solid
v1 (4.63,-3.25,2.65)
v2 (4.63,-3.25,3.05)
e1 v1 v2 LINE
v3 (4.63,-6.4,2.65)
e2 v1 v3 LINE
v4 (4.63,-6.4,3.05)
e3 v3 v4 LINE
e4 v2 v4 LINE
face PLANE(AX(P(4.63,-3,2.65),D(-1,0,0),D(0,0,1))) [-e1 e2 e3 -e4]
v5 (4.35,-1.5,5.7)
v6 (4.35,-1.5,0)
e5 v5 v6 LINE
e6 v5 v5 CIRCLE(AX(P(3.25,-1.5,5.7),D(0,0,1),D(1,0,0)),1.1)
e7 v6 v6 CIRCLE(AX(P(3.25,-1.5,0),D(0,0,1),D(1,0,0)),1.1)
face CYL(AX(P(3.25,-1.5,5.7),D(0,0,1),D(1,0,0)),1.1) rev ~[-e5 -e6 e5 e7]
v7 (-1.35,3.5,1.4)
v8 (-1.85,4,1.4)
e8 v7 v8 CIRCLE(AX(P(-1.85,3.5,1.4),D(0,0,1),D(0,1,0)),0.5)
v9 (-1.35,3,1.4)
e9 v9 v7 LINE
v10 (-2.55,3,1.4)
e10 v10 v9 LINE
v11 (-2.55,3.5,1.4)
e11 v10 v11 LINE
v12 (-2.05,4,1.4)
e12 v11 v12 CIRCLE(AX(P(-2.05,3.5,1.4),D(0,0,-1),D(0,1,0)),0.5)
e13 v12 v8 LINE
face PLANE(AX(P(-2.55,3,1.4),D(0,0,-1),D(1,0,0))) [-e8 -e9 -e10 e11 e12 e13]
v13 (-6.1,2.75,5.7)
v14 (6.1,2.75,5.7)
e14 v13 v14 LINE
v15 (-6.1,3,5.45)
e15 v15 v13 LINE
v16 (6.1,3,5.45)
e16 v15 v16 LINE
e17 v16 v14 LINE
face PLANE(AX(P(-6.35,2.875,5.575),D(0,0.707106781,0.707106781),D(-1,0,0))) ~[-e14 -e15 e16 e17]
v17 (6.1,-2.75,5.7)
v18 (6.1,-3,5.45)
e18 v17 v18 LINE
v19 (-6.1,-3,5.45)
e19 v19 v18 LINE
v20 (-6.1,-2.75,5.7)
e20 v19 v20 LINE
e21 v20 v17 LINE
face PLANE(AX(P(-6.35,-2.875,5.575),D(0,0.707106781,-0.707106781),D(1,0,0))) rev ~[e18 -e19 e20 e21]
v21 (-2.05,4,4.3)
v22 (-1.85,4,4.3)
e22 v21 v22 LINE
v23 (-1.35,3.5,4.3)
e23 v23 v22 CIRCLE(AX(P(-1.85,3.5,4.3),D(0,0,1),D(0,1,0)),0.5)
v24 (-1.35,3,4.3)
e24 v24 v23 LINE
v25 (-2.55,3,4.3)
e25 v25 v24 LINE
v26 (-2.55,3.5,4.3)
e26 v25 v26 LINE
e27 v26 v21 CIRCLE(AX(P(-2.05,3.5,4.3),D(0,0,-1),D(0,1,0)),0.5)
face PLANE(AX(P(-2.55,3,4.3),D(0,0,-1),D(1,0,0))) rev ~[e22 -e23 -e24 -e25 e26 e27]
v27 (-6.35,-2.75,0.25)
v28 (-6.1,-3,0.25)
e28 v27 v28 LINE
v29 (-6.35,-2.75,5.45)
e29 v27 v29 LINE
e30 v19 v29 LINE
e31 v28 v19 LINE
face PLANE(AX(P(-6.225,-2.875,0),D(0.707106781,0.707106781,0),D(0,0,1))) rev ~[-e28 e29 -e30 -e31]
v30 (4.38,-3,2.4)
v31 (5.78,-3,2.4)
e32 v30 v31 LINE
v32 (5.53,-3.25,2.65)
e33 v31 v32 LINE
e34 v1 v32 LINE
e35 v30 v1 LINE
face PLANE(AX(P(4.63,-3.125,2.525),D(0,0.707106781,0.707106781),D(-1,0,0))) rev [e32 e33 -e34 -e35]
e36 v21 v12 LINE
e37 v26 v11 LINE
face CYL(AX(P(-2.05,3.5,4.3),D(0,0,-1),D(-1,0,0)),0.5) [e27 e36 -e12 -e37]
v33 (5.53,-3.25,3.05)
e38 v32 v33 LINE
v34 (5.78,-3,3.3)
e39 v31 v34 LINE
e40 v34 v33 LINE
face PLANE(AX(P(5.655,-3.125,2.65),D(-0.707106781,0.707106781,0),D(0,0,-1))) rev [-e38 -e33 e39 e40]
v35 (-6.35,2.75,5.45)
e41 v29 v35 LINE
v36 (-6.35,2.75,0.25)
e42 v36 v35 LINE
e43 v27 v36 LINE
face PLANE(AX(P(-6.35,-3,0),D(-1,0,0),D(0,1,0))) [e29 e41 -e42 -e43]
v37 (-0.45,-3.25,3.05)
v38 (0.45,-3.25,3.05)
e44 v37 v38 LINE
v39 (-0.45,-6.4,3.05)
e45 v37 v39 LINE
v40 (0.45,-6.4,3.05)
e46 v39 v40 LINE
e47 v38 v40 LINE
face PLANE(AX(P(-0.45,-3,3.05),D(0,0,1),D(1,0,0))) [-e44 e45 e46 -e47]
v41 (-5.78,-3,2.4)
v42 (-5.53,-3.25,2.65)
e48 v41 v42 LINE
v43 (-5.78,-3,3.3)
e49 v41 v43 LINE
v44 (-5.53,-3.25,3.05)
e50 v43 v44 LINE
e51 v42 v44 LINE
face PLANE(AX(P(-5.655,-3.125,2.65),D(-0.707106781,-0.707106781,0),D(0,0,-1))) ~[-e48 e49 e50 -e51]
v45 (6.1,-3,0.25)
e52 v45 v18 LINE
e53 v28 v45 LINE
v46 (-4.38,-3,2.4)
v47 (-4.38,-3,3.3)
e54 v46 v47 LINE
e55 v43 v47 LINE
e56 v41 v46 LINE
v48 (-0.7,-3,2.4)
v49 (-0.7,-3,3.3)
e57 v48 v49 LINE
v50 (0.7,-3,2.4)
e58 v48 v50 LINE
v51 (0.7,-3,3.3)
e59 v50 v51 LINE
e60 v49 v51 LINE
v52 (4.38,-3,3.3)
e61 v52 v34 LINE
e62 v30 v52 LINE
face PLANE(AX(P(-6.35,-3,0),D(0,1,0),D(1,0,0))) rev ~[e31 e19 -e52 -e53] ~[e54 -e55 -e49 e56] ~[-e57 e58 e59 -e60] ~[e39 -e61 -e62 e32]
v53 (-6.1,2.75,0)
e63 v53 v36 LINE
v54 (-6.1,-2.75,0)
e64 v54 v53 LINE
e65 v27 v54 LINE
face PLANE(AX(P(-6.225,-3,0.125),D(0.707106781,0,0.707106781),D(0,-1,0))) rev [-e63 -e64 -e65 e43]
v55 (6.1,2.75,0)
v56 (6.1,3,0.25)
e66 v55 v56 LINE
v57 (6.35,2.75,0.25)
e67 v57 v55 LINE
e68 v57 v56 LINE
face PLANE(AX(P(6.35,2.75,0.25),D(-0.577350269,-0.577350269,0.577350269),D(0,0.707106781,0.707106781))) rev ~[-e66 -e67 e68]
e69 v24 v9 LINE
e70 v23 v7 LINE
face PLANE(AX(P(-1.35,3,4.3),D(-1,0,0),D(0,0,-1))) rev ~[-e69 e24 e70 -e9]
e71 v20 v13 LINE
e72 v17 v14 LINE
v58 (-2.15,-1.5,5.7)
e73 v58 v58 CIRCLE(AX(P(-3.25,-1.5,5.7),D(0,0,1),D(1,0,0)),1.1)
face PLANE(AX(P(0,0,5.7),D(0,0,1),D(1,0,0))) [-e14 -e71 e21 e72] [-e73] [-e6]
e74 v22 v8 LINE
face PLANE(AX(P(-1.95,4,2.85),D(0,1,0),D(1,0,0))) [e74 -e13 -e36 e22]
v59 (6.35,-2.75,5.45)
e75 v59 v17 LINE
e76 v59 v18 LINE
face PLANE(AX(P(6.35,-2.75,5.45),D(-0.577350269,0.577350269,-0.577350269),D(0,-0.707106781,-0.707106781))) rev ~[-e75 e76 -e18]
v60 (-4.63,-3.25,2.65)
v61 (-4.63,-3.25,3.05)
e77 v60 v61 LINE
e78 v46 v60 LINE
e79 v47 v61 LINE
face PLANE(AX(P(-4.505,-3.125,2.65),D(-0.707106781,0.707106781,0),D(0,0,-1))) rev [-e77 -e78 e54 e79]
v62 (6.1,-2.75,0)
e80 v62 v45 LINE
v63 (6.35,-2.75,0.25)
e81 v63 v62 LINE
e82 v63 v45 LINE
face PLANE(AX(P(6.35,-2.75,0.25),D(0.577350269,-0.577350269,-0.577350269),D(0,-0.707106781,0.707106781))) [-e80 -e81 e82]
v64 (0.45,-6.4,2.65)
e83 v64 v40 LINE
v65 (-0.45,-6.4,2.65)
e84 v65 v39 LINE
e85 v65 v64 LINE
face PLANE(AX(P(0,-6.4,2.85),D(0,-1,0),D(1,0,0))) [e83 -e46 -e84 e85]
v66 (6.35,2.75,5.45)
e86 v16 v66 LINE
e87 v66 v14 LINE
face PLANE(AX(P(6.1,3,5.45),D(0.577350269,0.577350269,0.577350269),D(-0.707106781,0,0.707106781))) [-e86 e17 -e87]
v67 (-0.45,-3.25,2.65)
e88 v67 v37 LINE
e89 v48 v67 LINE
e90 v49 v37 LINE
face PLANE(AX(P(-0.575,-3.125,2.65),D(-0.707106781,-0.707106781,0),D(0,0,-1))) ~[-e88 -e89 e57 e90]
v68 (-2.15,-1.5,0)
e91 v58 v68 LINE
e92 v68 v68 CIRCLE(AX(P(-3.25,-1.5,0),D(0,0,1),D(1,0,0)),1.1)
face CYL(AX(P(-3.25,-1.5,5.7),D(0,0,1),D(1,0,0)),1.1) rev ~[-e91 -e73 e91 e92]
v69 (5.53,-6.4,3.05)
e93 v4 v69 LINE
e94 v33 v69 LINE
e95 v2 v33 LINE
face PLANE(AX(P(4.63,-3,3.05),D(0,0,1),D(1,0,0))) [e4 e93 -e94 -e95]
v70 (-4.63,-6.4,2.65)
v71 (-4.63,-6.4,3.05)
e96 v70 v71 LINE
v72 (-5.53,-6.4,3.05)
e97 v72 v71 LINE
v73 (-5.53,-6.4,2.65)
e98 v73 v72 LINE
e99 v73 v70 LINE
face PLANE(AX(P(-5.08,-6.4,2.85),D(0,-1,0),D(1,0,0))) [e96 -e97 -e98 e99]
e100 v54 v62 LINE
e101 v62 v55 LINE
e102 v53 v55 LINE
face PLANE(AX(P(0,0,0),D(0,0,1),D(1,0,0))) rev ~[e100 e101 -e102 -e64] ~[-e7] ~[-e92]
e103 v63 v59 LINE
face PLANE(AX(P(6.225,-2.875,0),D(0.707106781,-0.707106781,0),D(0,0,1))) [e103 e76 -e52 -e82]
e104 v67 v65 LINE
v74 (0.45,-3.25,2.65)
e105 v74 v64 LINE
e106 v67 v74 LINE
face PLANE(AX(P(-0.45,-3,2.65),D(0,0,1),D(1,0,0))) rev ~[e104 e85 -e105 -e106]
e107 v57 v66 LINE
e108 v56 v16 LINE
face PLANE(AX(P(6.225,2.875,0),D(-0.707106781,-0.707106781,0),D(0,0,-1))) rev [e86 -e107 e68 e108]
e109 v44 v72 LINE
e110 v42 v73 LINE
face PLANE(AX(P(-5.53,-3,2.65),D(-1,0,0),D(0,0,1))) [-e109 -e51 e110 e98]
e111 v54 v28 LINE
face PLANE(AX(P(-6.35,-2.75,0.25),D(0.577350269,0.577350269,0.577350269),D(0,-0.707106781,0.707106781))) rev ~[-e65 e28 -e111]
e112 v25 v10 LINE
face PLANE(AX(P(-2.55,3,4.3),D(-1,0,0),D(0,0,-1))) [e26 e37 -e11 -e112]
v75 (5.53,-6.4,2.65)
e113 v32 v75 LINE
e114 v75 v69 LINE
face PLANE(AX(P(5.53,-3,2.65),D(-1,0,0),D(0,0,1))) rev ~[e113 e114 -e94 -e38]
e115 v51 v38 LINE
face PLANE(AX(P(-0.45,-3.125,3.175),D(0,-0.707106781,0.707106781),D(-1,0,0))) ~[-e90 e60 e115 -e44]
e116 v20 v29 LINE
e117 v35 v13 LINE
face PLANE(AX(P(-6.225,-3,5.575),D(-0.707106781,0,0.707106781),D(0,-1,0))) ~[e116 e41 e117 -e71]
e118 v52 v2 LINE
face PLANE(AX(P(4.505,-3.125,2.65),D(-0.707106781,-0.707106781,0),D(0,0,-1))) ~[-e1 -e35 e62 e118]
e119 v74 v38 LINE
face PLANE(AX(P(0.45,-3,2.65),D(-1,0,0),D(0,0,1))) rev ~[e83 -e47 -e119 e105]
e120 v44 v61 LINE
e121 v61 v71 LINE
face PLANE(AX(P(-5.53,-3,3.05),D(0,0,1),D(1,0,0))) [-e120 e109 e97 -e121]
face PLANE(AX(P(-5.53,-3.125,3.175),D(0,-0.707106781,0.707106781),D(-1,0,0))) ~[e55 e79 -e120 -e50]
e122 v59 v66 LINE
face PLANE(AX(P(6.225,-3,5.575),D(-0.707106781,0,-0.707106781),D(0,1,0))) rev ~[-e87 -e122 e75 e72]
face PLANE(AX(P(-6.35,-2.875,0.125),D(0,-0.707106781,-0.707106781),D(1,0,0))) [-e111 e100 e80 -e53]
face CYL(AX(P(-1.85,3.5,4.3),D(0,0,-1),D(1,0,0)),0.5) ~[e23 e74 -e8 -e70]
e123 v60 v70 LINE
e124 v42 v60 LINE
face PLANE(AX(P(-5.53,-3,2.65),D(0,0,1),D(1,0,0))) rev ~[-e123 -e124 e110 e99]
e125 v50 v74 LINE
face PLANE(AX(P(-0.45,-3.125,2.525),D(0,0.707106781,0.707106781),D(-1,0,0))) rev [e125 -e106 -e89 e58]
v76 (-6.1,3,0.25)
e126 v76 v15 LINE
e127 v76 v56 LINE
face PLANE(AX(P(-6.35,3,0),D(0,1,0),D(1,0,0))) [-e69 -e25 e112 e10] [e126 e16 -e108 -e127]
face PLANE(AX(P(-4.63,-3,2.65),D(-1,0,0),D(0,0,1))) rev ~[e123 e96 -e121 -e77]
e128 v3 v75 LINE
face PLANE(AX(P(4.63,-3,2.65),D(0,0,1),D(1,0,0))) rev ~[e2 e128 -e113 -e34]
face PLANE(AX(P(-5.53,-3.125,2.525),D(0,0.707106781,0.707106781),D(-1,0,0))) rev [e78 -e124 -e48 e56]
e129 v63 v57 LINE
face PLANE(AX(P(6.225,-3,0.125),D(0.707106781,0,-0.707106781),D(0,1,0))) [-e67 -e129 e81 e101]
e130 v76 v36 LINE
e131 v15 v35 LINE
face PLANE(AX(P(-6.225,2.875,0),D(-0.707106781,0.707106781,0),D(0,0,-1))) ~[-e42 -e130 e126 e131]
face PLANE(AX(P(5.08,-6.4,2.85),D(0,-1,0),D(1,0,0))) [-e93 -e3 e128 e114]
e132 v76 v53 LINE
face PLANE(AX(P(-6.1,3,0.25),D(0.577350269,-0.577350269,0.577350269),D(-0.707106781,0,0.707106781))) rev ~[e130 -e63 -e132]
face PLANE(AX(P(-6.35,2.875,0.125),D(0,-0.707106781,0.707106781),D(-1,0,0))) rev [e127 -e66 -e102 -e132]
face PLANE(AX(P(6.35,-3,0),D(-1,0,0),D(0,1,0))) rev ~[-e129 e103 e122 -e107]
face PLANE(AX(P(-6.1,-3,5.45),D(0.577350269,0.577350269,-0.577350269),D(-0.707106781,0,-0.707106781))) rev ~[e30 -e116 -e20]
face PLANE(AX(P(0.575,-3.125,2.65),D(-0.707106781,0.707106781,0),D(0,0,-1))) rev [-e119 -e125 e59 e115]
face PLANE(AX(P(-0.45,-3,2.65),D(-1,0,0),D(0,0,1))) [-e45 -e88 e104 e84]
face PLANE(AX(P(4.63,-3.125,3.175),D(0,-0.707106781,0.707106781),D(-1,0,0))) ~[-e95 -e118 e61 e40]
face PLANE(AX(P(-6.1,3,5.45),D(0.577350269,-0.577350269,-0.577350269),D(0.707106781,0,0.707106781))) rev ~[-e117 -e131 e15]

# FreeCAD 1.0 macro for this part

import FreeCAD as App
import Part
import Sketcher
Q = App.Units.Quantity


def edges_at(feature, points):
    """Names of the edges that pass closest to the given points."""
    edges = feature.Shape.Edges
    near = lambda p: min(range(len(edges)), key=lambda i: edges[i].distToShape(Part.Vertex(*p))[0])
    return sorted({f"Edge{near(p) + 1}" for p in points})


def add_polygon(sketch, points):
    """Adds a closed chain of lines whose ends are joined by coincident constraints."""
    first, n = sketch.GeometryCount, len(points)
    for a, b in zip(points, points[1:] + points[:1]):
        sketch.addGeometry(Part.LineSegment(App.Vector(*a, 0), App.Vector(*b, 0)), False)
    for i in range(n):
        sketch.addConstraint(Sketcher.Constraint("Coincident", first + i, 2, first + (i + 1) % n, 1))

doc = App.newDocument("Part")
body = doc.addObject("PartDesign::Body", "Body")

sketch1 = body.newObject("Sketcher::SketchObject", "Sketch")
sketch1.AttachmentSupport = (doc.getObject("XY_Plane"), [""])
sketch1.MapMode = "FlatFace"
add_polygon(sketch1, [(-6, 3), (-6, -3), (6, -3), (6, 3)])
sketch1.addConstraint([
    Sketcher.Constraint("Vertical", 0),
    Sketcher.Constraint("Horizontal", 1),
    Sketcher.Constraint("Vertical", 2),
    Sketcher.Constraint("Horizontal", 3),
    Sketcher.Constraint("Symmetric", 0, 2, 2, 2, -1, 1),
    Sketcher.Constraint("DistanceY", 0, 2, 0, 1, Q("6 mm")),
    Sketcher.Constraint("DistanceX", 1, 1, 1, 2, Q("12.7 mm")),
])
pad1 = body.newObject("PartDesign::Pad", "Pad")
pad1.Profile = sketch1
pad1.Length = 5.7

sketch2 = body.newObject("Sketcher::SketchObject", "Sketch001")
sketch2.AttachmentSupport = (doc.getObject("XZ_Plane"), [""])
sketch2.MapMode = "FlatFace"
sketch2.AttachmentOffset = App.Placement(App.Vector(0, 0, -3), App.Rotation())
add_polygon(sketch2, [(-2.5, 1.4), (-2.5, 4.3), (-1.4, 4.3), (-1.4, 1.4)])
sketch2.addConstraint([
    Sketcher.Constraint("Vertical", 0),
    Sketcher.Constraint("Horizontal", 1),
    Sketcher.Constraint("Vertical", 2),
    Sketcher.Constraint("Horizontal", 3),
    Sketcher.Constraint("DistanceX", 1, 1, 1, 2, Q("1.2 mm")),
    Sketcher.Constraint("DistanceY", 0, 1, 0, 2, Q("2.9 mm")),
    Sketcher.Constraint("DistanceY", -1, 1, 0, 2, Q("4.3 mm")),
    Sketcher.Constraint("DistanceX", 0, 2, -1, 1, Q("2.55 mm")),
])
pad2 = body.newObject("PartDesign::Pad", "Pad001")
pad2.Profile = sketch2
pad2.Length = 1
pad2.Reversed = True

sketch3 = body.newObject("Sketcher::SketchObject", "Sketch002")
sketch3.AttachmentSupport = (doc.getObject("XY_Plane"), [""])
sketch3.MapMode = "FlatFace"
sketch3.AttachmentOffset = App.Placement(App.Vector(0, 0, 5.7), App.Rotation())
sketch3.addGeometry([
    Part.Circle(App.Vector(-3.2, -1.5, 0), App.Vector(0, 0, 1), 1.1),
    Part.Circle(App.Vector(3.2, -1.5, 0), App.Vector(0, 0, 1), 1.1),
], False)
sketch3.addConstraint([
    Sketcher.Constraint("Equal", 0, 1),
    Sketcher.Constraint("Symmetric", 0, 3, 1, 3, -2),
    Sketcher.Constraint("Diameter", 0, Q("2.2 mm")),
    Sketcher.Constraint("DistanceY", 0, 3, -1, 1, Q("1.5 mm")),
    Sketcher.Constraint("DistanceX", 0, 3, 1, 3, Q("6.5 mm")),
])
pocket1 = body.newObject("PartDesign::Pocket", "Pocket")
pocket1.Profile = sketch3
pocket1.Type = "ThroughAll"
doc.recompute()

fillet = body.newObject("PartDesign::Fillet", "Fillet")
fillet.Base = (pocket1, edges_at(pocket1, [(-1.35, 4, 2.85), (-2.55, 4, 2.85)]))
fillet.Radius = 0.5

sketch4 = body.newObject("Sketcher::SketchObject", "Sketch003")
sketch4.AttachmentSupport = (doc.getObject("XZ_Plane"), [""])
sketch4.MapMode = "FlatFace"
sketch4.AttachmentOffset = App.Placement(App.Vector(0, 0, 3), App.Rotation())
add_polygon(sketch4, [(-0.45, 3.05), (-0.45, 2.65), (0.45, 2.65), (0.45, 3.05)])
sketch4.addConstraint([
    Sketcher.Constraint("Vertical", 0),
    Sketcher.Constraint("Horizontal", 1),
    Sketcher.Constraint("Vertical", 2),
    Sketcher.Constraint("Horizontal", 3),
    Sketcher.Constraint("DistanceX", 1, 1, 1, 2, Q("0.9 mm")),
    Sketcher.Constraint("DistanceY", 0, 2, 0, 1, Q("0.4 mm")),
    Sketcher.Constraint("DistanceX", 0, 2, -1, 1, Q("0.45 mm")),
    Sketcher.Constraint("DistanceY", -1, 1, 0, 2, Q("2.65 mm")),
])
pad3 = body.newObject("PartDesign::Pad", "Pad002")
pad3.Profile = sketch4
pad3.Length = 3.4
doc.recompute()

linearpattern = body.newObject("PartDesign::LinearPattern", "LinearPattern")
linearpattern.Originals = [pad3]
linearpattern.Direction = (doc.getObject("X_Axis"), [""])
linearpattern.Mode = "offset"
linearpattern.Offset = 5.08
linearpattern.Occurrences = 2
body.Tip = linearpattern
doc.recompute()

linearpattern2 = body.newObject("PartDesign::LinearPattern", "LinearPattern001")
linearpattern2.Originals = [pad3]
linearpattern2.Direction = (doc.getObject("X_Axis"), [""])
linearpattern2.Mode = "offset"
linearpattern2.Offset = 5.08
linearpattern2.Occurrences = 2
linearpattern2.Reversed = True
body.Tip = linearpattern2
doc.recompute()

chamfer = body.newObject("PartDesign::Chamfer", "Chamfer")
chamfer.Base = (linearpattern2, edges_at(linearpattern2, [
    (-6.35, 0, 5.7),
    (0, -3, 5.7),
    (6.35, 0, 5.7),
    (0, -3, 0),
    (0.45, -3, 2.85),
    (0, -3, 3.05),
    (-0.45, -3, 2.85),
    (0, -3, 2.65),
    (-6.35, 0, 0),
    (0, 3, 0),
    (6.35, 0, 0),
    (5.53, -3, 2.85),
    (5.08, -3, 3.05),
    (4.63, -3, 2.85),
    (5.08, -3, 2.65),
    (-4.63, -3, 2.85),
    (-5.08, -3, 3.05),
    (-5.53, -3, 2.85),
    (-5.08, -3, 2.65),
    (6.35, -3, 2.85),
    (-6.35, -3, 2.85),
    (-6.35, 3, 2.85),
    (6.35, 3, 2.85),
    (0, 3, 5.7),
]))
chamfer.Size = 0.25

doc.recompute()
